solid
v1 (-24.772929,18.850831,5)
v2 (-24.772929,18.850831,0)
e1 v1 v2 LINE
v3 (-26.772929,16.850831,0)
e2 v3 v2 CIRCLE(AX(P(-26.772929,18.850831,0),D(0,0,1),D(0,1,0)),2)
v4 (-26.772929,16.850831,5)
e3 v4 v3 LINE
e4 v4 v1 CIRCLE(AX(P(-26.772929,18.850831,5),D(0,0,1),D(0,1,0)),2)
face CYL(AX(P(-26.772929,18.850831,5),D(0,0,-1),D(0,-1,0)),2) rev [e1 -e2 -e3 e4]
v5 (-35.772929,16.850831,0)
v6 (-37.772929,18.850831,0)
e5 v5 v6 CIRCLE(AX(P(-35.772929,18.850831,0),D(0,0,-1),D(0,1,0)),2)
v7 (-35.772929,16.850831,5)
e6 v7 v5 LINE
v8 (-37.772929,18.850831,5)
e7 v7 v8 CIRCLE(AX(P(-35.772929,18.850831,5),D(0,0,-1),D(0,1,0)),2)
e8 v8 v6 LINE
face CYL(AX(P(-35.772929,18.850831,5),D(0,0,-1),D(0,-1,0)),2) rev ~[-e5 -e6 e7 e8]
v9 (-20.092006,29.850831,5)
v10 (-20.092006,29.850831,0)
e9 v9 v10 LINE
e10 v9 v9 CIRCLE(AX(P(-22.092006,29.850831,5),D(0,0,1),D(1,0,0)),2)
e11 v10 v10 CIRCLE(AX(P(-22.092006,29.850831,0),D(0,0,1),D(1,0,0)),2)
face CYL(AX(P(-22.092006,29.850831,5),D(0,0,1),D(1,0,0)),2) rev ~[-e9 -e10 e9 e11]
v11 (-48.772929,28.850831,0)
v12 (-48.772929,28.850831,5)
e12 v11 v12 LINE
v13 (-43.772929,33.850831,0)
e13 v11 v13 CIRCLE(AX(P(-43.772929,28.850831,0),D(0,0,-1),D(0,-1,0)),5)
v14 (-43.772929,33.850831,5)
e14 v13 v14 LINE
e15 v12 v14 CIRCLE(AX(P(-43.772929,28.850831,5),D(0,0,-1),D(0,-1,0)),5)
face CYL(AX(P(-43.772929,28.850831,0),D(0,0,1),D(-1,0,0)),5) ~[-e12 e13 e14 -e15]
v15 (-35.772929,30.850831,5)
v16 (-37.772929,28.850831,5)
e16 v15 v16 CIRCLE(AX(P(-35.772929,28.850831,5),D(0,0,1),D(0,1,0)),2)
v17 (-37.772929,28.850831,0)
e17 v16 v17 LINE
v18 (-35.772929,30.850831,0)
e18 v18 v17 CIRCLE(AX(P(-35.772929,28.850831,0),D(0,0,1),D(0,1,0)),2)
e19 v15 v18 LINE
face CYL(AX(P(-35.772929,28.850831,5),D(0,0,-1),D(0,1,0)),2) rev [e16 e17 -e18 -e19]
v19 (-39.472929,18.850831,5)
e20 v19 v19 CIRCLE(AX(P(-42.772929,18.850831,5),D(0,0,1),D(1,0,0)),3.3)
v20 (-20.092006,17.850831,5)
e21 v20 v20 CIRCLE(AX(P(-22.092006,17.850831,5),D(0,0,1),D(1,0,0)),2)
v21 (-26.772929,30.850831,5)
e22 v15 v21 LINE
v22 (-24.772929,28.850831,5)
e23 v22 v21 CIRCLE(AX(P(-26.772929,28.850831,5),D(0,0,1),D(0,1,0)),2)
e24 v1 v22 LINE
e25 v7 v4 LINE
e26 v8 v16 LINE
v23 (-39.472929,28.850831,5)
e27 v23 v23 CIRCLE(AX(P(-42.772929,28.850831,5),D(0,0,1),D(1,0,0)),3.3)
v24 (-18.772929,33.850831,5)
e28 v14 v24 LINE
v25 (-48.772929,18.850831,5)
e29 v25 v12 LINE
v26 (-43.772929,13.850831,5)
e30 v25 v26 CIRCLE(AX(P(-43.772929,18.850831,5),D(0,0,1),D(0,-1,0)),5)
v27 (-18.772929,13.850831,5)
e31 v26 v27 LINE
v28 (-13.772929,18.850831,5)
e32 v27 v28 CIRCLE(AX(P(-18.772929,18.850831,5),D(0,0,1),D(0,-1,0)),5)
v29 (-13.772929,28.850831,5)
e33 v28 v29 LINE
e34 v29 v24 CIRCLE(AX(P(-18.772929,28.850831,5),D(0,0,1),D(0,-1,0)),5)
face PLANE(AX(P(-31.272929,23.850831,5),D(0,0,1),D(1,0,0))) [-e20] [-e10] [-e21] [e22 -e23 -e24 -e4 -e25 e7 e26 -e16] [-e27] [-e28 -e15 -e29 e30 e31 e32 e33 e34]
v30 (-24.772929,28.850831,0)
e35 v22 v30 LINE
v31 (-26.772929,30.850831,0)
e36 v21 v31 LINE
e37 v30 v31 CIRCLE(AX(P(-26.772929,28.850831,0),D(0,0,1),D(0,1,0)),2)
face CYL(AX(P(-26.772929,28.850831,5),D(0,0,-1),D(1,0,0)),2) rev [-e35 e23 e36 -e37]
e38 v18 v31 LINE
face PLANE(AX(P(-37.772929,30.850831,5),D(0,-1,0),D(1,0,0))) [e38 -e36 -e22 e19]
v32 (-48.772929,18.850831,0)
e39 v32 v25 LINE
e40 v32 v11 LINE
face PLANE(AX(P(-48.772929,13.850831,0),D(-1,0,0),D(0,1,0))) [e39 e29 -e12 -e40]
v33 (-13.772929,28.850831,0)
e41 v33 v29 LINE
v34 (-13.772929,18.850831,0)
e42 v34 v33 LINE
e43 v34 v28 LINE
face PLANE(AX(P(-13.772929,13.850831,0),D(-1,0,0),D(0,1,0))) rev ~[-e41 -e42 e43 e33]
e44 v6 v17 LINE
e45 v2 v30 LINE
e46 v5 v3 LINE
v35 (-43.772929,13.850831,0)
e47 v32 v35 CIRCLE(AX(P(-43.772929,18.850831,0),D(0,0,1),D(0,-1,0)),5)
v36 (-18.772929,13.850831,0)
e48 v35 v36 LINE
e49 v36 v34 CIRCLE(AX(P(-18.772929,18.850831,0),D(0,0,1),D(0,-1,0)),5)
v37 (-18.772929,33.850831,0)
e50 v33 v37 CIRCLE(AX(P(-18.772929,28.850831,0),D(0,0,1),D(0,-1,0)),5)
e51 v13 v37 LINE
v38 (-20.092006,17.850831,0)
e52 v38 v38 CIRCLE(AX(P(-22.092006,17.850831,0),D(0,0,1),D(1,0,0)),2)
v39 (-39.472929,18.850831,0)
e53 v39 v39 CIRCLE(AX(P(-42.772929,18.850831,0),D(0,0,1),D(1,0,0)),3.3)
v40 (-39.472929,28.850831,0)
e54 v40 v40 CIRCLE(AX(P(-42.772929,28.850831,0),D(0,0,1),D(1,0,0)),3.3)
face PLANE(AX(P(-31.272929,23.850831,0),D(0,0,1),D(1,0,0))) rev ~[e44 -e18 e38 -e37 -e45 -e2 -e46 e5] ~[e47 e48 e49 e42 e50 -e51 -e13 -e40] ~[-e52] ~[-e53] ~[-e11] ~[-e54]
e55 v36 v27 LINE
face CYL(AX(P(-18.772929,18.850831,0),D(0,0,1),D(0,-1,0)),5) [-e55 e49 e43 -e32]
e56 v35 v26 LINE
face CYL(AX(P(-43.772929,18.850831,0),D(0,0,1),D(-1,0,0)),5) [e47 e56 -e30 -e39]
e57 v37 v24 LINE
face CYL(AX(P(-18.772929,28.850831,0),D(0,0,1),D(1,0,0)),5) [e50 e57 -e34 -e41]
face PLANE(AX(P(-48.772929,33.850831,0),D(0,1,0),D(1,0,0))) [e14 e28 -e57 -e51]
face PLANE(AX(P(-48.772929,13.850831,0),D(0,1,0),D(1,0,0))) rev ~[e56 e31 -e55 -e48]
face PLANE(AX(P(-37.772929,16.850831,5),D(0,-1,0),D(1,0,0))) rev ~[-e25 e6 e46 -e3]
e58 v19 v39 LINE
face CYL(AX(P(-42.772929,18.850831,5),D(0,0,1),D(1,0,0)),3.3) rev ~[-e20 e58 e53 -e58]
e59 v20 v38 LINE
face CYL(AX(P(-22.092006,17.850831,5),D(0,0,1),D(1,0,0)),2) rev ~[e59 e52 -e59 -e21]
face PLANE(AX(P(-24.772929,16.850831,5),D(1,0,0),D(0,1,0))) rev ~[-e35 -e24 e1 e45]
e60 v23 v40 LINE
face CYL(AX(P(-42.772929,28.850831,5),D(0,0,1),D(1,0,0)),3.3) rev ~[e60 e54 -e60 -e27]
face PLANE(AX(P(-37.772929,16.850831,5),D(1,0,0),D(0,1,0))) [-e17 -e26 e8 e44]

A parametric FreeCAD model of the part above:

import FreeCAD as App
import Part
import Sketcher

V = App.Vector
Q = App.Units.Quantity


def edges_at(feature, points):
    """Names of the edges that pass closest to the given points."""
    edges = feature.Shape.Edges
    near = lambda p: min(range(len(edges)), key=lambda i: edges[i].distToShape(Part.Vertex(*p))[0])
    return sorted({f"Edge{near(p) + 1}" for p in points})

doc = App.newDocument("Part")
params = doc.addObject("Spreadsheet::Sheet", "Params")
for row, (alias, value) in enumerate([
    ("sketch1_width", "35 mm"),
    ("sketch1_height", "20 mm"),
    ("pad1_length", "5 mm"),
    ("fillet_radius", "5 mm"),
    ("sketch2_diameter", "4 mm"),
    ("pocket1_length", "10 mm"),
    ("sketch3_diameter", "6.6 mm"),
    ("pocket2_length", "10 mm"),
    ("sketch4_width", "13 mm"),
    ("sketch4_height", "14 mm"),
    ("pocket3_length", "10 mm"),
    ("fillet2_radius", "2 mm"),
], start=1):
    params.set(f"A{row}", alias)
    params.set(f"B{row}", "=" + value)
    params.setAlias(f"B{row}", alias)

body = doc.addObject("PartDesign::Body", "Body")

sketch1 = body.newObject("Sketcher::SketchObject", "Sketch")
sketch1.AttachmentSupport = (doc.getObject("XY_Plane"), [""])
sketch1.MapMode = "FlatFace"
sketch1.addGeometry(Part.LineSegment(V(-48.772929, 33.850831, 0), V(-48.772929, 13.850831, 0)), False)
sketch1.addGeometry(Part.LineSegment(V(-48.772929, 13.850831, 0), V(-13.772929, 13.850831, 0)), False)
sketch1.addGeometry(Part.LineSegment(V(-13.772929, 13.850831, 0), V(-13.772929, 33.850831, 0)), False)
sketch1.addGeometry(Part.LineSegment(V(-13.772929, 33.850831, 0), V(-48.772929, 33.850831, 0)), False)
sketch1.addConstraint(Sketcher.Constraint("Coincident", 0, 2, 1, 1))
sketch1.addConstraint(Sketcher.Constraint("Coincident", 1, 2, 2, 1))
sketch1.addConstraint(Sketcher.Constraint("Coincident", 2, 2, 3, 1))
sketch1.addConstraint(Sketcher.Constraint("Coincident", 3, 2, 0, 1))
sketch1.addConstraint(Sketcher.Constraint("Vertical", 0))
sketch1.addConstraint(Sketcher.Constraint("Horizontal", 1))
sketch1.addConstraint(Sketcher.Constraint("Vertical", 2))
sketch1.addConstraint(Sketcher.Constraint("Horizontal", 3))
sketch1.addConstraint(Sketcher.Constraint("DistanceX", 1, 1, 1, 2, Q("35 mm")))
sketch1.addConstraint(Sketcher.Constraint("DistanceY", 0, 2, 0, 1, Q("20 mm")))
sketch1.addConstraint(Sketcher.Constraint("DistanceX", 0, 2, -1, 1, Q("48.772929 mm")))
sketch1.addConstraint(Sketcher.Constraint("DistanceY", -1, 1, 0, 2, Q("13.850831 mm")))
sketch1.setExpression("Constraints[8]", "Params.sketch1_width")
sketch1.setExpression("Constraints[9]", "Params.sketch1_height")
pad1 = body.newObject("PartDesign::Pad", "Pad")
pad1.Profile = sketch1
pad1.setExpression("Length", "Params.pad1_length")
doc.recompute()

fillet = body.newObject("PartDesign::Fillet", "Fillet")
fillet.Base = (pad1, edges_at(pad1, [
    (-13.773, 13.851, 2.5),
    (-48.773, 13.851, 2.5),
    (-48.773, 33.851, 2.5),
    (-13.773, 33.851, 2.5),
]))
fillet.setExpression("Radius", "Params.fillet_radius")

sketch2 = body.newObject("Sketcher::SketchObject", "Sketch001")
sketch2.AttachmentSupport = (doc.getObject("XY_Plane"), [""])
sketch2.MapMode = "FlatFace"
sketch2.AttachmentOffset = App.Placement(V(0, 0, 5), App.Rotation())
sketch2.addGeometry(Part.Circle(V(-22.092006, 29.850831, 0), V(0, 0, 1), 2), False)
sketch2.addGeometry(Part.Circle(V(-22.092006, 17.850831, 0), V(0, 0, 1), 2), False)
sketch2.addConstraint(Sketcher.Constraint("Equal", 0, 1))
sketch2.addConstraint(Sketcher.Constraint("Vertical", 0, 3, 1, 3))
sketch2.addConstraint(Sketcher.Constraint("Diameter", 0, Q("4 mm")))
sketch2.addConstraint(Sketcher.Constraint("DistanceY", 1, 3, 0, 3, Q("12 mm")))
sketch2.addConstraint(Sketcher.Constraint("DistanceY", -1, 1, 0, 3, Q("29.850831 mm")))
sketch2.addConstraint(Sketcher.Constraint("DistanceX", 0, 3, -1, 1, Q("22.092006 mm")))
sketch2.setExpression("Constraints[2]", "Params.sketch2_diameter")
pocket1 = body.newObject("PartDesign::Pocket", "Pocket")
pocket1.Profile = sketch2
pocket1.setExpression("Length", "Params.pocket1_length")

sketch3 = body.newObject("Sketcher::SketchObject", "Sketch002")
sketch3.AttachmentSupport = (doc.getObject("XY_Plane"), [""])
sketch3.MapMode = "FlatFace"
sketch3.AttachmentOffset = App.Placement(V(0, 0, 5), App.Rotation())
sketch3.addGeometry(Part.Circle(V(-42.772929, 28.850831, 0), V(0, 0, 1), 3.3), False)
sketch3.addGeometry(Part.Circle(V(-42.772929, 18.850831, 0), V(0, 0, 1), 3.3), False)
sketch3.addConstraint(Sketcher.Constraint("Equal", 0, 1))
sketch3.addConstraint(Sketcher.Constraint("Vertical", 0, 3, 1, 3))
sketch3.addConstraint(Sketcher.Constraint("Diameter", 0, Q("6.6 mm")))
sketch3.addConstraint(Sketcher.Constraint("DistanceY", 1, 3, 0, 3, Q("10 mm")))
sketch3.addConstraint(Sketcher.Constraint("DistanceX", 0, 3, -1, 1, Q("42.772929 mm")))
sketch3.addConstraint(Sketcher.Constraint("DistanceY", -1, 1, 0, 3, Q("28.850831 mm")))
sketch3.setExpression("Constraints[2]", "Params.sketch3_diameter")
pocket2 = body.newObject("PartDesign::Pocket", "Pocket001")
pocket2.Profile = sketch3
pocket2.setExpression("Length", "Params.pocket2_length")

sketch4 = body.newObject("Sketcher::SketchObject", "Sketch003")
sketch4.AttachmentSupport = (doc.getObject("XY_Plane"), [""])
sketch4.MapMode = "FlatFace"
sketch4.AttachmentOffset = App.Placement(V(0, 0, 5), App.Rotation())
sketch4.addGeometry(Part.LineSegment(V(-37.772929, 30.850831, 0), V(-37.772929, 16.850831, 0)), False)
sketch4.addGeometry(Part.LineSegment(V(-37.772929, 16.850831, 0), V(-24.772929, 16.850831, 0)), False)
sketch4.addGeometry(Part.LineSegment(V(-24.772929, 16.850831, 0), V(-24.772929, 30.850831, 0)), False)
sketch4.addGeometry(Part.LineSegment(V(-24.772929, 30.850831, 0), V(-37.772929, 30.850831, 0)), False)
sketch4.addConstraint(Sketcher.Constraint("Coincident", 0, 2, 1, 1))
sketch4.addConstraint(Sketcher.Constraint("Coincident", 1, 2, 2, 1))
sketch4.addConstraint(Sketcher.Constraint("Coincident", 2, 2, 3, 1))
sketch4.addConstraint(Sketcher.Constraint("Coincident", 3, 2, 0, 1))
sketch4.addConstraint(Sketcher.Constraint("Vertical", 0))
sketch4.addConstraint(Sketcher.Constraint("Horizontal", 1))
sketch4.addConstraint(Sketcher.Constraint("Vertical", 2))
sketch4.addConstraint(Sketcher.Constraint("Horizontal", 3))
sketch4.addConstraint(Sketcher.Constraint("DistanceX", 1, 1, 1, 2, Q("13 mm")))
sketch4.addConstraint(Sketcher.Constraint("DistanceY", 0, 2, 0, 1, Q("14 mm")))
sketch4.addConstraint(Sketcher.Constraint("DistanceX", 0, 2, -1, 1, Q("37.772929 mm")))
sketch4.addConstraint(Sketcher.Constraint("DistanceY", -1, 1, 0, 2, Q("16.850831 mm")))
sketch4.setExpression("Constraints[8]", "Params.sketch4_width")
sketch4.setExpression("Constraints[9]", "Params.sketch4_height")
pocket3 = body.newObject("PartDesign::Pocket", "Pocket002")
pocket3.Profile = sketch4
pocket3.setExpression("Length", "Params.pocket3_length")
doc.recompute()

fillet2 = body.newObject("PartDesign::Fillet", "Fillet001")
fillet2.Base = (pocket3, edges_at(pocket3, [
    (-24.773, 30.851, 2.5),
    (-24.773, 16.851, 2.5),
    (-37.773, 16.851, 2.5),
    (-37.773, 30.851, 2.5),
]))
fillet2.setExpression("Radius", "Params.fillet2_radius")

doc.recompute()
